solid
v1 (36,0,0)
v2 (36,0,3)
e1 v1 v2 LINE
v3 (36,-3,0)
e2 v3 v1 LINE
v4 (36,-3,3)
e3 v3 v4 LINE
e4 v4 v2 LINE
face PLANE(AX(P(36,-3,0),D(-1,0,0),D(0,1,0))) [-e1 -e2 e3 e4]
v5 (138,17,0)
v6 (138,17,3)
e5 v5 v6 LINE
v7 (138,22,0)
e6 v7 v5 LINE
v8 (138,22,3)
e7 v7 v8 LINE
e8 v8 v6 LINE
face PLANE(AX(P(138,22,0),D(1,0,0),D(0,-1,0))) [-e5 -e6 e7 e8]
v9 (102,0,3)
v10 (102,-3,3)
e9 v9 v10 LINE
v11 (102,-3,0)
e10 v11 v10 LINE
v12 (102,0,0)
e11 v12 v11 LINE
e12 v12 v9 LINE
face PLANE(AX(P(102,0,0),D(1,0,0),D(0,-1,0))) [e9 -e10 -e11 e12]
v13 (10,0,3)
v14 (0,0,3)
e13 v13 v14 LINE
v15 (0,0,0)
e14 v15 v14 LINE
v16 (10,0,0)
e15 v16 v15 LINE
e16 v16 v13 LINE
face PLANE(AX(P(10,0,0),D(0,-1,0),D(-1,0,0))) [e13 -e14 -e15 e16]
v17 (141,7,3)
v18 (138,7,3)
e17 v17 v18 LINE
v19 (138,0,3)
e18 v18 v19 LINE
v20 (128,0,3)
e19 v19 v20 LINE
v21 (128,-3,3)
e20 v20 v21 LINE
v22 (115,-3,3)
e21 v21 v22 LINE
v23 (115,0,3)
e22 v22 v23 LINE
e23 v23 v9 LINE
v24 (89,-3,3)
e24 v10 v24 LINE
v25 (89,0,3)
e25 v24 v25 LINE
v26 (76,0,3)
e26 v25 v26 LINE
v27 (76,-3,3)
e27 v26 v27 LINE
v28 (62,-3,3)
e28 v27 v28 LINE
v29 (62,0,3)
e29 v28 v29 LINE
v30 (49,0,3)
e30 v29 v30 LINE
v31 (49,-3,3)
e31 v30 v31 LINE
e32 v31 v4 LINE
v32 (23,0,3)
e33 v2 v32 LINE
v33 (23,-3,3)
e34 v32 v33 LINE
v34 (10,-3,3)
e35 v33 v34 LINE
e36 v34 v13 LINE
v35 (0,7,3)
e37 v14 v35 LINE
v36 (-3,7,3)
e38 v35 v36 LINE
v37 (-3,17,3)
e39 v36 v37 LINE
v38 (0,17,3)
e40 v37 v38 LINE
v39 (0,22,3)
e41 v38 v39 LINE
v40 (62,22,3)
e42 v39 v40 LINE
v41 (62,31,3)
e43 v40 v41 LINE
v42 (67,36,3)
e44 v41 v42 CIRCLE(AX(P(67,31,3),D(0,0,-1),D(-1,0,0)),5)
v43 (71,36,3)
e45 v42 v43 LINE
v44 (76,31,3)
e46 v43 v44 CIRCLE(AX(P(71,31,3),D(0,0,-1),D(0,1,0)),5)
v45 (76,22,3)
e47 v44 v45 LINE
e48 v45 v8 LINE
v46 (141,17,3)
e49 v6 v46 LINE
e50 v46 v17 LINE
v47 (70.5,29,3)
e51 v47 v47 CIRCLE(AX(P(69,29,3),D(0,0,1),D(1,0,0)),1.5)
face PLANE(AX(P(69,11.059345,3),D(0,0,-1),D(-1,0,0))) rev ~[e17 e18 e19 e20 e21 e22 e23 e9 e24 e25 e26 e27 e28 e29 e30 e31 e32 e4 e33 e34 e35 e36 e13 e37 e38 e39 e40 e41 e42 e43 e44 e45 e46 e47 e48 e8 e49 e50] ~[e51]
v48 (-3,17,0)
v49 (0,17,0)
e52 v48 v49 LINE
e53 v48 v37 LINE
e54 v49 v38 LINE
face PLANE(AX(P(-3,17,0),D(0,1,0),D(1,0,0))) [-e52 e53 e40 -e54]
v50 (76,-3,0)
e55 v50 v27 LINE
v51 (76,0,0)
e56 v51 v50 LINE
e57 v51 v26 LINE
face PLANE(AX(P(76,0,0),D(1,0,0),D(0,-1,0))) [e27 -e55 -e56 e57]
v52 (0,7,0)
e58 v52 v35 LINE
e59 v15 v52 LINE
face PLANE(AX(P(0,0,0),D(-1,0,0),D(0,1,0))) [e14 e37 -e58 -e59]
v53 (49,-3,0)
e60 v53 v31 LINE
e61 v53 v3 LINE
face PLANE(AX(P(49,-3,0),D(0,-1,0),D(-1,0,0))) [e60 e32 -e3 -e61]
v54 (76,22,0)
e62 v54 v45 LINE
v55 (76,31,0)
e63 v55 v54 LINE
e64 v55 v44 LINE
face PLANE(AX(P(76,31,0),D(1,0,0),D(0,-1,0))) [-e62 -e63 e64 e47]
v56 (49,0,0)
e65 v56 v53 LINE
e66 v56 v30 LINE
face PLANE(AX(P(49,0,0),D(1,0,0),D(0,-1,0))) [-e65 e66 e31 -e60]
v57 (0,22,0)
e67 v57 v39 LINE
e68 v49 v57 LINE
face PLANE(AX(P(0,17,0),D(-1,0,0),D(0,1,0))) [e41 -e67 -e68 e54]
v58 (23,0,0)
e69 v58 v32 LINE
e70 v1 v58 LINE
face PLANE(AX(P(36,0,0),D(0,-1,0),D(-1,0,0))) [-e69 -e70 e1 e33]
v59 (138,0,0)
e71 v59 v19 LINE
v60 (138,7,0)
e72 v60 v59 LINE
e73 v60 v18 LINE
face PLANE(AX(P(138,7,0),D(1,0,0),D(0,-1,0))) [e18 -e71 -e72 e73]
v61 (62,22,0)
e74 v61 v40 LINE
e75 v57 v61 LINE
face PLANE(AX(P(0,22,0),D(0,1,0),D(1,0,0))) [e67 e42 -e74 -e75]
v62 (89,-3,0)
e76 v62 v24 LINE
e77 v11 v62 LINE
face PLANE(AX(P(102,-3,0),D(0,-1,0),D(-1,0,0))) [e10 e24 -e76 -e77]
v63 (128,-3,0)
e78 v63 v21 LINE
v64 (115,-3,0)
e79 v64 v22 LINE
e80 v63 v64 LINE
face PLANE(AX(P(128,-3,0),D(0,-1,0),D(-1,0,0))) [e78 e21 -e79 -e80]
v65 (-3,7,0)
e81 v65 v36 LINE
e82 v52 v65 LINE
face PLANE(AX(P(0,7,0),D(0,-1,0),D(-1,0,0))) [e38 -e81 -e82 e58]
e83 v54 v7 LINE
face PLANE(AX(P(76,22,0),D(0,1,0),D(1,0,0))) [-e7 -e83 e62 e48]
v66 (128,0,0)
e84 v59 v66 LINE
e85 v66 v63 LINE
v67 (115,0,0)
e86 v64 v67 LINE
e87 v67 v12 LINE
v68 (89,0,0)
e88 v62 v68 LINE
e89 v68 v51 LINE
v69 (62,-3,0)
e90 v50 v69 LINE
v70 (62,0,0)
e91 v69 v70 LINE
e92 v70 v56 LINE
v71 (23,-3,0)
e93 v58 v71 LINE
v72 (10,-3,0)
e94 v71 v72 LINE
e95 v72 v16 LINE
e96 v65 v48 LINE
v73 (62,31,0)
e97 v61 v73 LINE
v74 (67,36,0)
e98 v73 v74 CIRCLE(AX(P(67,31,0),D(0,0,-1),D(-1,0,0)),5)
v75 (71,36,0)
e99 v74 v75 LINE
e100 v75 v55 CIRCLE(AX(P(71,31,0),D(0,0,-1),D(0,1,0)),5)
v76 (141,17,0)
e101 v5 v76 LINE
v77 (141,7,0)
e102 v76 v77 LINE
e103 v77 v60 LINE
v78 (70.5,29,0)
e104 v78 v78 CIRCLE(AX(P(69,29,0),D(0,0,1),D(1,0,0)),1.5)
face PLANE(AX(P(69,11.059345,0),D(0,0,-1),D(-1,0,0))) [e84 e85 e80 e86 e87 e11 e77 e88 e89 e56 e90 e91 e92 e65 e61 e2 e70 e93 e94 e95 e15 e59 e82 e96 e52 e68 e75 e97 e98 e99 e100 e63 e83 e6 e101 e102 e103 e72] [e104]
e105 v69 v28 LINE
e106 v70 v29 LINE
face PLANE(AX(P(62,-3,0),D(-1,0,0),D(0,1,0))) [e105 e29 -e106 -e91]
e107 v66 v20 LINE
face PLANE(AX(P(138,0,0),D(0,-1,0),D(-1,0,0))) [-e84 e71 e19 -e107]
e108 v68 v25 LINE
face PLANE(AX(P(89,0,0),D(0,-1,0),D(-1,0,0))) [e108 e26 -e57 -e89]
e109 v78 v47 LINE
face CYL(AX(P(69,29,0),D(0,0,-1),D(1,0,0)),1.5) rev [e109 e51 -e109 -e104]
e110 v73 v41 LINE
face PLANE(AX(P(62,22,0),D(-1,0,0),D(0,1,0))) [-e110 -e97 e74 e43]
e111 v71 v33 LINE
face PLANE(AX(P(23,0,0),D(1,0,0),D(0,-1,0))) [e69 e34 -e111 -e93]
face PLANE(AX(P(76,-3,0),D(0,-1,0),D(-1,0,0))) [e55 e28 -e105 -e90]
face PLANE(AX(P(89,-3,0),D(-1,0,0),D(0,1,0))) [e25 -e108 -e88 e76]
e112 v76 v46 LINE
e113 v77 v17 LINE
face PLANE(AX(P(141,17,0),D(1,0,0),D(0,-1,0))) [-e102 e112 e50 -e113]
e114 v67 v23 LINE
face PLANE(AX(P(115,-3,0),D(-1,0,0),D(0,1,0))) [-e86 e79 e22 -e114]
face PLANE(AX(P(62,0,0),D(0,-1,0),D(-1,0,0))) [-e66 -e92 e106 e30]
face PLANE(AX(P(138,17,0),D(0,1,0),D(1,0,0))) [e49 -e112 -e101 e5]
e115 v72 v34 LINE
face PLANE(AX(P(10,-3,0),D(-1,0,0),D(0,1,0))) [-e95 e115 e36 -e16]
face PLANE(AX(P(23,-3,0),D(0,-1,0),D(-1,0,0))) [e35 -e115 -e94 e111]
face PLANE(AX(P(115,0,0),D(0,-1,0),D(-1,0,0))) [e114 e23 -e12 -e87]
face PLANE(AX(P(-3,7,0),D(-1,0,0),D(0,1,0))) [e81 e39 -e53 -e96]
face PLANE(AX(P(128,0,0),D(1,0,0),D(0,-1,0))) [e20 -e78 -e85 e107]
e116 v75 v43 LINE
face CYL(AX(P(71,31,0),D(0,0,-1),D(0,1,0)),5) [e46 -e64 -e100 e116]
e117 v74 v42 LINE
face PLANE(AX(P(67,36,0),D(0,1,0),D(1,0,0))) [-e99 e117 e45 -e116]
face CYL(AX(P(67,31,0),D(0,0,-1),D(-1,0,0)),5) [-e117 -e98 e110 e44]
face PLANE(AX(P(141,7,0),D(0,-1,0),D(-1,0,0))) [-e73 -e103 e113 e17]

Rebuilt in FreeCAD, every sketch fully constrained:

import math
import FreeCAD as App
import Part
import Sketcher

doc = App.newDocument("Part")
params = doc.addObject("Spreadsheet::Sheet", "Params")
for row, (alias, value) in enumerate([
    ("sketch1_diameter", "3 mm"),
    ("sketch1_radius", "5 mm"),
    ("sketch1_width", "3 mm"),
    ("sketch1_width2", "10 mm"),
    ("sketch1_width3", "13 mm"),
    ("pad1_length", "3 mm"),
], start=1):
    params.set(f"A{row}", alias)
    params.set(f"B{row}", "=" + value)
    params.setAlias(f"B{row}", alias)

body = doc.addObject("PartDesign::Body", "Body")

# Sketch on XY plane
sketch1 = body.newObject("Sketcher::SketchObject", "Sketch")
sketch1.AttachmentSupport = (doc.getObject("XY_Plane"), [""])
sketch1.MapMode = "FlatFace"
sketch1.addGeometry(Part.LineSegment(App.Vector(0, 22, 0), App.Vector(0, 17, 0)), False)
sketch1.addGeometry(Part.LineSegment(App.Vector(0, 17, 0), App.Vector(-3, 17, 0)), False)
sketch1.addGeometry(Part.LineSegment(App.Vector(-3, 17, 0), App.Vector(-3, 7, 0)), False)
sketch1.addGeometry(Part.LineSegment(App.Vector(-3, 7, 0), App.Vector(0, 7, 0)), False)
sketch1.addGeometry(Part.LineSegment(App.Vector(0, 7, 0), App.Vector(0, 0, 0)), False)
sketch1.addGeometry(Part.LineSegment(App.Vector(0, 0, 0), App.Vector(10, 0, 0)), False)
sketch1.addGeometry(Part.LineSegment(App.Vector(10, 0, 0), App.Vector(10, -3, 0)), False)
sketch1.addGeometry(Part.LineSegment(App.Vector(10, -3, 0), App.Vector(23, -3, 0)), False)
sketch1.addGeometry(Part.LineSegment(App.Vector(23, -3, 0), App.Vector(23, 0, 0)), False)
sketch1.addGeometry(Part.LineSegment(App.Vector(23, 0, 0), App.Vector(36, 0, 0)), False)
sketch1.addGeometry(Part.LineSegment(App.Vector(36, 0, 0), App.Vector(36, -3, 0)), False)
sketch1.addGeometry(Part.LineSegment(App.Vector(36, -3, 0), App.Vector(49, -3, 0)), False)
sketch1.addGeometry(Part.LineSegment(App.Vector(49, -3, 0), App.Vector(49, 0, 0)), False)
sketch1.addGeometry(Part.LineSegment(App.Vector(49, 0, 0), App.Vector(62, 0, 0)), False)
sketch1.addGeometry(Part.LineSegment(App.Vector(62, 0, 0), App.Vector(62, -3, 0)), False)
sketch1.addGeometry(Part.LineSegment(App.Vector(62, -3, 0), App.Vector(76, -3, 0)), False)
sketch1.addGeometry(Part.LineSegment(App.Vector(76, -3, 0), App.Vector(76, 0, 0)), False)
sketch1.addGeometry(Part.LineSegment(App.Vector(76, 0, 0), App.Vector(89, 0, 0)), False)
sketch1.addGeometry(Part.LineSegment(App.Vector(89, 0, 0), App.Vector(89, -3, 0)), False)
sketch1.addGeometry(Part.LineSegment(App.Vector(89, -3, 0), App.Vector(102, -3, 0)), False)
sketch1.addGeometry(Part.LineSegment(App.Vector(102, -3, 0), App.Vector(102, 0, 0)), False)
sketch1.addGeometry(Part.LineSegment(App.Vector(102, 0, 0), App.Vector(115, 0, 0)), False)
sketch1.addGeometry(Part.LineSegment(App.Vector(115, 0, 0), App.Vector(115, -3, 0)), False)
sketch1.addGeometry(Part.LineSegment(App.Vector(115, -3, 0), App.Vector(128, -3, 0)), False)
sketch1.addGeometry(Part.LineSegment(App.Vector(128, -3, 0), App.Vector(128, 0, 0)), False)
sketch1.addGeometry(Part.LineSegment(App.Vector(128, 0, 0), App.Vector(138, 0, 0)), False)
sketch1.addGeometry(Part.LineSegment(App.Vector(138, 0, 0), App.Vector(138, 7, 0)), False)
sketch1.addGeometry(Part.LineSegment(App.Vector(138, 7, 0), App.Vector(141, 7, 0)), False)
sketch1.addGeometry(Part.LineSegment(App.Vector(141, 7, 0), App.Vector(141, 17, 0)), False)
sketch1.addGeometry(Part.LineSegment(App.Vector(141, 17, 0), App.Vector(138, 17, 0)), False)
sketch1.addGeometry(Part.LineSegment(App.Vector(138, 17, 0), App.Vector(138, 22, 0)), False)
sketch1.addGeometry(Part.LineSegment(App.Vector(138, 22, 0), App.Vector(76, 22, 0)), False)
sketch1.addGeometry(Part.LineSegment(App.Vector(76, 22, 0), App.Vector(76, 31, 0)), False)
sketch1.addGeometry(Part.ArcOfCircle(Part.Circle(App.Vector(71, 31, 0), App.Vector(0, 0, 1), 5), math.radians(0), math.radians(90)), False)
sketch1.addGeometry(Part.LineSegment(App.Vector(71, 36, 0), App.Vector(67, 36, 0)), False)
sketch1.addGeometry(Part.ArcOfCircle(Part.Circle(App.Vector(67, 31, 0), App.Vector(0, 0, 1), 5), math.radians(90), math.radians(180)), False)
sketch1.addGeometry(Part.LineSegment(App.Vector(62, 31, 0), App.Vector(62, 22, 0)), False)
sketch1.addGeometry(Part.LineSegment(App.Vector(62, 22, 0), App.Vector(0, 22, 0)), False)
sketch1.addGeometry(Part.Circle(App.Vector(69, 29, 0), App.Vector(0, 0, 1), 1.5), False)
sketch1.addConstraint(Sketcher.Constraint("Coincident", 0, 2, 1, 1))
sketch1.addConstraint(Sketcher.Constraint("Coincident", 1, 2, 2, 1))
sketch1.addConstraint(Sketcher.Constraint("Coincident", 2, 2, 3, 1))
sketch1.addConstraint(Sketcher.Constraint("Coincident", 3, 2, 4, 1))
sketch1.addConstraint(Sketcher.Constraint("Coincident", 4, 2, 5, 1))
sketch1.addConstraint(Sketcher.Constraint("Coincident", 5, 2, 6, 1))
sketch1.addConstraint(Sketcher.Constraint("Coincident", 6, 2, 7, 1))
sketch1.addConstraint(Sketcher.Constraint("Coincident", 7, 2, 8, 1))
sketch1.addConstraint(Sketcher.Constraint("Coincident", 8, 2, 9, 1))
sketch1.addConstraint(Sketcher.Constraint("Coincident", 9, 2, 10, 1))
sketch1.addConstraint(Sketcher.Constraint("Coincident", 10, 2, 11, 1))
sketch1.addConstraint(Sketcher.Constraint("Coincident", 11, 2, 12, 1))
sketch1.addConstraint(Sketcher.Constraint("Coincident", 12, 2, 13, 1))
sketch1.addConstraint(Sketcher.Constraint("Coincident", 13, 2, 14, 1))
sketch1.addConstraint(Sketcher.Constraint("Coincident", 14, 2, 15, 1))
sketch1.addConstraint(Sketcher.Constraint("Coincident", 15, 2, 16, 1))
sketch1.addConstraint(Sketcher.Constraint("Coincident", 16, 2, 17, 1))
sketch1.addConstraint(Sketcher.Constraint("Coincident", 17, 2, 18, 1))
sketch1.addConstraint(Sketcher.Constraint("Coincident", 18, 2, 19, 1))
sketch1.addConstraint(Sketcher.Constraint("Coincident", 19, 2, 20, 1))
sketch1.addConstraint(Sketcher.Constraint("Coincident", 20, 2, 21, 1))
sketch1.addConstraint(Sketcher.Constraint("Coincident", 21, 2, 22, 1))
sketch1.addConstraint(Sketcher.Constraint("Coincident", 22, 2, 23, 1))
sketch1.addConstraint(Sketcher.Constraint("Coincident", 23, 2, 24, 1))
sketch1.addConstraint(Sketcher.Constraint("Coincident", 24, 2, 25, 1))
sketch1.addConstraint(Sketcher.Constraint("Coincident", 25, 2, 26, 1))
sketch1.addConstraint(Sketcher.Constraint("Coincident", 26, 2, 27, 1))
sketch1.addConstraint(Sketcher.Constraint("Coincident", 27, 2, 28, 1))
sketch1.addConstraint(Sketcher.Constraint("Coincident", 28, 2, 29, 1))
sketch1.addConstraint(Sketcher.Constraint("Coincident", 29, 2, 30, 1))
sketch1.addConstraint(Sketcher.Constraint("Coincident", 30, 2, 31, 1))
sketch1.addConstraint(Sketcher.Constraint("Coincident", 31, 2, 32, 1))
sketch1.addConstraint(Sketcher.Constraint("Tangent", 32, 2, 33, 1))
sketch1.addConstraint(Sketcher.Constraint("Tangent", 33, 2, 34, 1))
sketch1.addConstraint(Sketcher.Constraint("Tangent", 34, 2, 35, 1))
sketch1.addConstraint(Sketcher.Constraint("Tangent", 35, 2, 36, 1))
sketch1.addConstraint(Sketcher.Constraint("Coincident", 36, 2, 37, 1))
sketch1.addConstraint(Sketcher.Constraint("Coincident", 37, 2, 0, 1))
sketch1.addConstraint(Sketcher.Constraint("Vertical", 0))
sketch1.addConstraint(Sketcher.Constraint("Horizontal", 1))
sketch1.addConstraint(Sketcher.Constraint("Vertical", 2))
sketch1.addConstraint(Sketcher.Constraint("Horizontal", 3))
sketch1.addConstraint(Sketcher.Constraint("Vertical", 4))
sketch1.addConstraint(Sketcher.Constraint("Horizontal", 5))
sketch1.addConstraint(Sketcher.Constraint("Vertical", 6))
sketch1.addConstraint(Sketcher.Constraint("Horizontal", 7))
sketch1.addConstraint(Sketcher.Constraint("Vertical", 8))
sketch1.addConstraint(Sketcher.Constraint("Horizontal", 9))
sketch1.addConstraint(Sketcher.Constraint("Vertical", 10))
sketch1.addConstraint(Sketcher.Constraint("Horizontal", 11))
sketch1.addConstraint(Sketcher.Constraint("Vertical", 12))
sketch1.addConstraint(Sketcher.Constraint("Horizontal", 13))
sketch1.addConstraint(Sketcher.Constraint("Vertical", 14))
sketch1.addConstraint(Sketcher.Constraint("Horizontal", 15))
sketch1.addConstraint(Sketcher.Constraint("Vertical", 16))
sketch1.addConstraint(Sketcher.Constraint("Horizontal", 17))
sketch1.addConstraint(Sketcher.Constraint("Vertical", 18))
sketch1.addConstraint(Sketcher.Constraint("Horizontal", 19))
sketch1.addConstraint(Sketcher.Constraint("Vertical", 20))
sketch1.addConstraint(Sketcher.Constraint("Horizontal", 21))
sketch1.addConstraint(Sketcher.Constraint("Vertical", 22))
sketch1.addConstraint(Sketcher.Constraint("Horizontal", 23))
sketch1.addConstraint(Sketcher.Constraint("Vertical", 24))
sketch1.addConstraint(Sketcher.Constraint("Horizontal", 25))
sketch1.addConstraint(Sketcher.Constraint("Vertical", 26))
sketch1.addConstraint(Sketcher.Constraint("Horizontal", 27))
sketch1.addConstraint(Sketcher.Constraint("Vertical", 28))
sketch1.addConstraint(Sketcher.Constraint("Horizontal", 29))
sketch1.addConstraint(Sketcher.Constraint("Vertical", 30))
sketch1.addConstraint(Sketcher.Constraint("Horizontal", 31))
sketch1.addConstraint(Sketcher.Constraint("Vertical", 32))
sketch1.addConstraint(Sketcher.Constraint("Horizontal", 34))
sketch1.addConstraint(Sketcher.Constraint("Vertical", 36))
sketch1.addConstraint(Sketcher.Constraint("Horizontal", 37))
sketch1.addConstraint(Sketcher.Constraint("Coincident", 4, 2, -1, 1))
sketch1.addConstraint(Sketcher.Constraint("Equal", 33, 35))
sketch1.addConstraint(Sketcher.Constraint("PointOnObject", 0, 2, -2))
sketch1.addConstraint(Sketcher.Constraint("PointOnObject", 8, 2, -1))
sketch1.addConstraint(Sketcher.Constraint("PointOnObject", 12, 2, -1))
sketch1.addConstraint(Sketcher.Constraint("PointOnObject", 16, 2, -1))
sketch1.addConstraint(Sketcher.Constraint("PointOnObject", 20, 2, -1))
sketch1.addConstraint(Sketcher.Constraint("PointOnObject", 24, 2, -1))
sketch1.addConstraint(Sketcher.Constraint("Horizontal", 7, 2, 10, 2))
sketch1.addConstraint(Sketcher.Constraint("Horizontal", 11, 2, 14, 2))
sketch1.addConstraint(Sketcher.Constraint("Horizontal", 15, 2, 18, 2))
sketch1.addConstraint(Sketcher.Constraint("Horizontal", 19, 2, 22, 2))
sketch1.addConstraint(Sketcher.Constraint("Horizontal", 3, 2, 26, 2))
sketch1.addConstraint(Sketcher.Constraint("Horizontal", 1, 2, 28, 2))
sketch1.addConstraint(Sketcher.Constraint("Horizontal", 31, 2, 36, 2))
sketch1.addConstraint(Sketcher.Constraint("Vertical", 26, 2, 29, 2))
sketch1.addConstraint(Sketcher.Constraint("Vertical", 16, 2, 31, 2))
sketch1.addConstraint(Sketcher.Constraint("Vertical", 14, 2, 35, 2))
sketch1.addConstraint(Sketcher.Constraint("Equal", 7, 9))
sketch1.addConstraint(Sketcher.Constraint("Equal", 9, 11))
sketch1.addConstraint(Sketcher.Constraint("Equal", 11, 13))
sketch1.addConstraint(Sketcher.Constraint("Equal", 13, 17))
sketch1.addConstraint(Sketcher.Constraint("Equal", 17, 19))
sketch1.addConstraint(Sketcher.Constraint("Equal", 19, 21))
sketch1.addConstraint(Sketcher.Constraint("Equal", 21, 23))
sketch1.addConstraint(Sketcher.Constraint("Equal", 5, 25))
sketch1.addConstraint(Sketcher.Constraint("Equal", 3, 27))
sketch1.addConstraint(Sketcher.Constraint("Equal", 25, 2))
sketch1.addConstraint(Sketcher.Constraint("Equal", 29, 6))
sketch1.addConstraint(Sketcher.Constraint("Diameter", 38, 3.0))
sketch1.addConstraint(Sketcher.Constraint("Radius", 33, 5.0))
sketch1.addConstraint(Sketcher.Constraint("DistanceX", 1, 2, 1, 1, 3.0))
sketch1.addConstraint(Sketcher.Constraint("DistanceX", 5, 1, 5, 2, 10.0))
sketch1.addConstraint(Sketcher.Constraint("DistanceX", 7, 1, 7, 2, 13.0))
sketch1.addConstraint(Sketcher.Constraint("DistanceX", 15, 1, 15, 2, 14.0))
sketch1.addConstraint(Sketcher.Constraint("DistanceY", 0, 2, 0, 1, 5.0))
sketch1.addConstraint(Sketcher.Constraint("DistanceY", 4, 2, 4, 1, 7.0))
sketch1.addConstraint(Sketcher.Constraint("DistanceY", 32, 1, 32, 2, 9.0))
sketch1.addConstraint(Sketcher.Constraint("DistanceX", -1, 1, 38, 3, 69.0))
sketch1.addConstraint(Sketcher.Constraint("DistanceY", -1, 1, 38, 3, 29.0))
sketch1.setExpression("Constraints[103]", "Params.sketch1_diameter")
sketch1.setExpression("Constraints[104]", "Params.sketch1_radius")
sketch1.setExpression("Constraints[105]", "Params.sketch1_width")
sketch1.setExpression("Constraints[106]", "Params.sketch1_width2")
sketch1.setExpression("Constraints[107]", "Params.sketch1_width3")
pad1 = body.newObject("PartDesign::Pad", "Pad")
pad1.Profile = sketch1
pad1.setExpression("Length", "Params.pad1_length")

doc.recompute()
